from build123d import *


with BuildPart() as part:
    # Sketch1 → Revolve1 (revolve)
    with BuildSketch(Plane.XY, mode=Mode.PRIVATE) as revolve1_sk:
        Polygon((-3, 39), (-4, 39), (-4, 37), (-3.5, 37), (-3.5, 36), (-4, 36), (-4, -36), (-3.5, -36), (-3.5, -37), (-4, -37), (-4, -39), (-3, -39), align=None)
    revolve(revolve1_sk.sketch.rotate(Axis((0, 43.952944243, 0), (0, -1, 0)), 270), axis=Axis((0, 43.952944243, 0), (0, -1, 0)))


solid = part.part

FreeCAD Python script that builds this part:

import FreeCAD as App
import Part
import Sketcher


def add_polygon(sketch, points):
    """Adds a closed chain of lines whose ends are joined by coincident constraints."""
    first, n = sketch.GeometryCount, len(points)
    for a, b in zip(points, points[1:] + points[:1]):
        sketch.addGeometry(Part.LineSegment(App.Vector(*a, 0), App.Vector(*b, 0)), False)
    for i in range(n):
        sketch.addConstraint(Sketcher.Constraint("Coincident", first + i, 2, first + (i + 1) % n, 1))

doc = App.newDocument("Part")
body = doc.addObject("PartDesign::Body", "Body")

# Sketch on XY plane
sketch1 = doc.addObject("Sketcher::SketchObject", "Sketch")
body.addObject(sketch1)
sketch1.AttachmentSupport = (doc.XY_Plane, [""])
sketch1.MapMode = "FlatFace"
add_polygon(sketch1, [(-3, 39), (-4, 39), (-4, 37), (-3.5, 37), (-3.5, 36), (-4, 36), (-4, -36), (-3.5, -36), (-3.5, -37), (-4, -37), (-4, -39), (-3, -39)])  # lines 0-11
sketch1.addConstraint([
    Sketcher.Constraint("Horizontal", 0),
    Sketcher.Constraint("Vertical", 1),
    Sketcher.Constraint("Horizontal", 2),
    Sketcher.Constraint("Vertical", 3),
    Sketcher.Constraint("Horizontal", 4),
    Sketcher.Constraint("Vertical", 5),
    Sketcher.Constraint("Horizontal", 6),
    Sketcher.Constraint("Vertical", 7),
    Sketcher.Constraint("Horizontal", 8),
    Sketcher.Constraint("Vertical", 9),
    Sketcher.Constraint("Horizontal", 10),
    Sketcher.Constraint("Vertical", 11),
    Sketcher.Constraint("Symmetric", 3, 2, 6, 2, -1),
    Sketcher.Constraint("Symmetric", 1, 2, 8, 2, -1),
    Sketcher.Constraint("Vertical", 1, 2, 4, 2),
    Sketcher.Constraint("Equal", 10, 3),
    Sketcher.Constraint("Equal", 1, 9),
    Sketcher.Constraint("DistanceX", 0, 2, 0, 1, 1.0),
    Sketcher.Constraint("DistanceY", 1, 2, 1, 1, 2.0),
    Sketcher.Constraint("DistanceY", 5, 2, 5, 1, 72.0),
    Sketcher.Constraint("DistanceX", 2, 1, 2, 2, 0.5),
    Sketcher.Constraint("DistanceX", 0, 2, -1, 1, 4.0),
])
revolution = doc.addObject("PartDesign::Revolution", "Revolution")
body.addObject(revolution)
revolution.Profile = sketch1
revolution.ReferenceAxis = (sketch1, ["V_Axis"])
revolution.Angle = 360

doc.recompute()
